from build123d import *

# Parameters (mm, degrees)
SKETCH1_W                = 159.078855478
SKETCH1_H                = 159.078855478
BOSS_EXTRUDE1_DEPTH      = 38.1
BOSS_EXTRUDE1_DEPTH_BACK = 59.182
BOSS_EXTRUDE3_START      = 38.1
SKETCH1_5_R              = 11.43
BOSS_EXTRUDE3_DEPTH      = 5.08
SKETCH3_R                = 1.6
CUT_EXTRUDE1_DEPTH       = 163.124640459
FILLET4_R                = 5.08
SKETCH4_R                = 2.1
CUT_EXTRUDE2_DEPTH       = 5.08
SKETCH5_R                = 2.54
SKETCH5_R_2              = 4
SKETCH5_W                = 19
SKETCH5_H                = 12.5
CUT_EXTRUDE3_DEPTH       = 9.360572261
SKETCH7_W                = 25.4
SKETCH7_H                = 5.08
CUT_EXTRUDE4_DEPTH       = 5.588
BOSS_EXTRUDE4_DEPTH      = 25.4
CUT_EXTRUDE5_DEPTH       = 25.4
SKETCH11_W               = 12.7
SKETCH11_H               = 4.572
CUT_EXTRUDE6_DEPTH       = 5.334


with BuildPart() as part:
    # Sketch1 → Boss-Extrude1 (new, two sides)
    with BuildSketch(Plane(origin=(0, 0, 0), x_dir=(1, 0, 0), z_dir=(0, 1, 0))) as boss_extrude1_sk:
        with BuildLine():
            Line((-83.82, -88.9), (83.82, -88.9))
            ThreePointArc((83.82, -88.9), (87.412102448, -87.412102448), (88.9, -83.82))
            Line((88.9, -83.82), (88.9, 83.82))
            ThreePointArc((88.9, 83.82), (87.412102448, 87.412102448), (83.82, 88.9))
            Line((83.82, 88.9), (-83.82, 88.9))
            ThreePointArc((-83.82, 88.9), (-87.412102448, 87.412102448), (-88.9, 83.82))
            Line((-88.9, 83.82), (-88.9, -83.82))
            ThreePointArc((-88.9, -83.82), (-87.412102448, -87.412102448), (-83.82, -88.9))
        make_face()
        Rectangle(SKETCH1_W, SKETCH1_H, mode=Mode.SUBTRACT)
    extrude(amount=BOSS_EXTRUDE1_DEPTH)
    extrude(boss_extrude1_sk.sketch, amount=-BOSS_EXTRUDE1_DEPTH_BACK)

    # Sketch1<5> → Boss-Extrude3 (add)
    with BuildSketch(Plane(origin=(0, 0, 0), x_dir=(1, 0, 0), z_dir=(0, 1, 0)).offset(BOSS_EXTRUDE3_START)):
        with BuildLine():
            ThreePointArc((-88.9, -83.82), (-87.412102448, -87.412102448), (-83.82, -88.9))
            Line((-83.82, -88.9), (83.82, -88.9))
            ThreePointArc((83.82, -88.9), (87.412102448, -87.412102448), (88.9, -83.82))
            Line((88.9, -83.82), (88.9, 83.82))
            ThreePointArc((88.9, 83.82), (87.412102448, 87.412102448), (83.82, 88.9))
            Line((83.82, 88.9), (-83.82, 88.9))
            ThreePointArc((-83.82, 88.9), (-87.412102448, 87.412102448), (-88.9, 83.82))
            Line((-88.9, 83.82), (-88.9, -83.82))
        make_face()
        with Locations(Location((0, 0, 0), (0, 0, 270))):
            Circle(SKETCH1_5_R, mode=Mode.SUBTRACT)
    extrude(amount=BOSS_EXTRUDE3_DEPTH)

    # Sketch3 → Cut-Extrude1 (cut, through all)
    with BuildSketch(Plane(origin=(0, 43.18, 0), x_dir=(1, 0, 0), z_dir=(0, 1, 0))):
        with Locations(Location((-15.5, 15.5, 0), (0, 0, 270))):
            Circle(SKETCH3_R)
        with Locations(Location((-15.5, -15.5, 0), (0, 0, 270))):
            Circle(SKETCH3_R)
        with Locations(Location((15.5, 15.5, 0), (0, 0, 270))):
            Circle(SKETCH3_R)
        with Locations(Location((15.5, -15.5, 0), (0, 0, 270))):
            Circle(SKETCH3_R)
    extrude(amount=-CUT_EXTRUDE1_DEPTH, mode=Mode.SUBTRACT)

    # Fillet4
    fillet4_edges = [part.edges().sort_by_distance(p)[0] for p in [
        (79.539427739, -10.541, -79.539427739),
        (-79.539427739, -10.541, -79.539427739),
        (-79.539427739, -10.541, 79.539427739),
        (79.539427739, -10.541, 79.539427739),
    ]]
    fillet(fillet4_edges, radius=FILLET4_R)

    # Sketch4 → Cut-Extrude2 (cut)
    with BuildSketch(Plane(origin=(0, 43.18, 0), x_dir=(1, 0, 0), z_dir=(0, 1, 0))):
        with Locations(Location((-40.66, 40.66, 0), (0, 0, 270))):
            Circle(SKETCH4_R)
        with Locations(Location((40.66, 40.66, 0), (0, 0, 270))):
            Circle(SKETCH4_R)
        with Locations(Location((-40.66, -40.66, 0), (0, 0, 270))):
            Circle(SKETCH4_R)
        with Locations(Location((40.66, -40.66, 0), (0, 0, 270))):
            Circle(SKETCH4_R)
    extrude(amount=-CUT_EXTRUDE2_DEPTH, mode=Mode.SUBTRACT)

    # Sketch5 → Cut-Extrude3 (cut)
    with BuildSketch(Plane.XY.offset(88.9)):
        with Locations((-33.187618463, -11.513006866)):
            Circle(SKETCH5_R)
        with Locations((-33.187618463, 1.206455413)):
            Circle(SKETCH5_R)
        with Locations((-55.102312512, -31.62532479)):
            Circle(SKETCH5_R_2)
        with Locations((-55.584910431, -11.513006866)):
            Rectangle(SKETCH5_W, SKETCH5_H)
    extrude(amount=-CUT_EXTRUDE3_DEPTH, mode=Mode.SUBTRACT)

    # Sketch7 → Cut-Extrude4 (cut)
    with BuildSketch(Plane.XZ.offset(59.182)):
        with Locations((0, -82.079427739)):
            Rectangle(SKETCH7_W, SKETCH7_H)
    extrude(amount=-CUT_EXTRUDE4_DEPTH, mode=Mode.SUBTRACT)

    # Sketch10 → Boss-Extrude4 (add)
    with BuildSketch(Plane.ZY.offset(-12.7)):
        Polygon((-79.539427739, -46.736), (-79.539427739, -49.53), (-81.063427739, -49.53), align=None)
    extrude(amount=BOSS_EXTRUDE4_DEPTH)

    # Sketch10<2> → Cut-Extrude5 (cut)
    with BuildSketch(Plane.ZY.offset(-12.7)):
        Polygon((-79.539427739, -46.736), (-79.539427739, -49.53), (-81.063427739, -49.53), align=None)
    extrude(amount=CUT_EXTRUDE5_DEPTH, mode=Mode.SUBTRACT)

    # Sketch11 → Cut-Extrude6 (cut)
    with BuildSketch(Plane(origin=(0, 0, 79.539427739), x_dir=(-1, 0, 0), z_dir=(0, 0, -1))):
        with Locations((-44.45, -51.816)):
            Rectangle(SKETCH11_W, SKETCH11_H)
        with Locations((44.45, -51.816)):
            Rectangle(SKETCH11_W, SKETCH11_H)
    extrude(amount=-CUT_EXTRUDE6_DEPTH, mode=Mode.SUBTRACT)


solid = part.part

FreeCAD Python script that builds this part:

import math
import FreeCAD as App
import Part
import Sketcher
Q = App.Units.Quantity


def edges_at(feature, points):
    """Names of the edges that pass closest to the given points."""
    edges = feature.Shape.Edges
    near = lambda p: min(range(len(edges)), key=lambda i: edges[i].distToShape(Part.Vertex(*p))[0])
    return sorted({f"Edge{near(p) + 1}" for p in points})


def add_polygon(sketch, points):
    """Adds a closed chain of lines whose ends are joined by coincident constraints."""
    first, n = sketch.GeometryCount, len(points)
    for a, b in zip(points, points[1:] + points[:1]):
        sketch.addGeometry(Part.LineSegment(App.Vector(*a, 0), App.Vector(*b, 0)), False)
    for i in range(n):
        sketch.addConstraint(Sketcher.Constraint("Coincident", first + i, 2, first + (i + 1) % n, 1))

doc = App.newDocument("Part")
body = doc.addObject("PartDesign::Body", "Body")

# Sketch on XZ plane
sketch1 = body.newObject("Sketcher::SketchObject", "Sketch")
sketch1.AttachmentSupport = (doc.getObject("XZ_Plane"), [""])
sketch1.MapMode = "FlatFace"
sketch1.addGeometry(Part.LineSegment(App.Vector(-84, 89, 0), App.Vector(84, 89, 0)), False)  # 0
sketch1.addGeometry(Part.ArcOfCircle(Part.Circle(App.Vector(84, 84, 0), App.Vector(0, 0, 1), 5), math.radians(0), math.radians(90)), False)  # 1
sketch1.addGeometry(Part.LineSegment(App.Vector(89, 84, 0), App.Vector(89, -84, 0)), False)  # 2
sketch1.addGeometry(Part.ArcOfCircle(Part.Circle(App.Vector(84, -84, 0), App.Vector(0, 0, 1), 5), math.radians(-90), math.radians(0)), False)  # 3
sketch1.addGeometry(Part.LineSegment(App.Vector(84, -89, 0), App.Vector(-84, -89, 0)), False)  # 4
sketch1.addGeometry(Part.ArcOfCircle(Part.Circle(App.Vector(-84, -84, 0), App.Vector(0, 0, 1), 5), math.radians(-180), math.radians(-90)), False)  # 5
sketch1.addGeometry(Part.LineSegment(App.Vector(-89, -84, 0), App.Vector(-89, 84, 0)), False)  # 6
sketch1.addGeometry(Part.ArcOfCircle(Part.Circle(App.Vector(-84, 84, 0), App.Vector(0, 0, 1), 5), math.radians(90), math.radians(180)), False)  # 7
add_polygon(sketch1, [(80, 80), (-80, 80), (-80, -80), (80, -80)])  # lines 8-11
sketch1.addConstraint([
    Sketcher.Constraint("Tangent", 0, 2, 1, 2),
    Sketcher.Constraint("Tangent", 1, 1, 2, 1),
    Sketcher.Constraint("Tangent", 2, 2, 3, 2),
    Sketcher.Constraint("Tangent", 3, 1, 4, 1),
    Sketcher.Constraint("Tangent", 4, 2, 5, 2),
    Sketcher.Constraint("Tangent", 5, 1, 6, 1),
    Sketcher.Constraint("Tangent", 6, 2, 7, 2),
    Sketcher.Constraint("Tangent", 7, 1, 0, 1),
    Sketcher.Constraint("Horizontal", 0),
    Sketcher.Constraint("Vertical", 2),
    Sketcher.Constraint("Horizontal", 4),
    Sketcher.Constraint("Vertical", 6),
    Sketcher.Constraint("Horizontal", 8),
    Sketcher.Constraint("Vertical", 9),
    Sketcher.Constraint("Horizontal", 10),
    Sketcher.Constraint("Vertical", 11),
    Sketcher.Constraint("Equal", 1, 3),
    Sketcher.Constraint("Equal", 3, 5),
    Sketcher.Constraint("Equal", 5, 7),
    Sketcher.Constraint("Symmetric", 1, 3, 5, 3, -1, 1),
    Sketcher.Constraint("Symmetric", 8, 2, 10, 2, -1, 1),
    Sketcher.Constraint("Equal", 4, 2),
    Sketcher.Constraint("Equal", 10, 9),
    Sketcher.Constraint("Radius", 1, Q("0.2 in")),
    Sketcher.Constraint("DistanceX", 0, 1, 0, 2, Q("6.6 in")),
    Sketcher.Constraint("DistanceX", 8, 2, 8, 1, 159.078855),
])
pad1 = body.newObject("PartDesign::Pad", "Pad")
pad1.Profile = sketch1
pad1.Type = "TwoLengths"
pad1.Length = Q("1.5 in")
pad1.Length2 = Q("2.33 in")
pad1.Reversed = True

# Sketch on XZ plane
sketch2 = body.newObject("Sketcher::SketchObject", "Sketch001")
sketch2.AttachmentSupport = (doc.getObject("XZ_Plane"), [""])
sketch2.MapMode = "FlatFace"
sketch2.AttachmentOffset = App.Placement(App.Vector(0, 0, -1.5 * 25.4), App.Rotation())
sketch2.addGeometry([
    Part.ArcOfCircle(Part.Circle(App.Vector(-84, 84, 0), App.Vector(0, 0, 1), 5), math.radians(90), math.radians(180)),  # 0
    Part.LineSegment(App.Vector(-84, 89, 0), App.Vector(84, 89, 0)),  # 1
    Part.ArcOfCircle(Part.Circle(App.Vector(84, 84, 0), App.Vector(0, 0, 1), 5), math.radians(0), math.radians(90)),  # 2
    Part.LineSegment(App.Vector(89, 84, 0), App.Vector(89, -84, 0)),  # 3
    Part.ArcOfCircle(Part.Circle(App.Vector(84, -84, 0), App.Vector(0, 0, 1), 5), math.radians(-90), math.radians(0)),  # 4
    Part.LineSegment(App.Vector(84, -89, 0), App.Vector(-84, -89, 0)),  # 5
    Part.ArcOfCircle(Part.Circle(App.Vector(-84, -84, 0), App.Vector(0, 0, 1), 5), math.radians(-180), math.radians(-90)),  # 6
    Part.LineSegment(App.Vector(-89, -84, 0), App.Vector(-89, 84, 0)),  # 7
    Part.Circle(App.Vector(0, 0, 0), App.Vector(0, 0, 1), 11),  # 8
], False)
sketch2.addConstraint([
    Sketcher.Constraint("Tangent", 0, 1, 1, 1),
    Sketcher.Constraint("Tangent", 1, 2, 2, 2),
    Sketcher.Constraint("Tangent", 2, 1, 3, 1),
    Sketcher.Constraint("Tangent", 3, 2, 4, 2),
    Sketcher.Constraint("Tangent", 4, 1, 5, 1),
    Sketcher.Constraint("Tangent", 5, 2, 6, 2),
    Sketcher.Constraint("Tangent", 6, 1, 7, 1),
    Sketcher.Constraint("Tangent", 7, 2, 0, 2),
    Sketcher.Constraint("Horizontal", 1),
    Sketcher.Constraint("Vertical", 3),
    Sketcher.Constraint("Horizontal", 5),
    Sketcher.Constraint("Vertical", 7),
    Sketcher.Constraint("Coincident", 8, 3, -1, 1),
    Sketcher.Constraint("Equal", 0, 2),
    Sketcher.Constraint("Equal", 2, 4),
    Sketcher.Constraint("Equal", 4, 6),
    Sketcher.Constraint("Symmetric", 0, 3, 4, 3, -1, 1),
    Sketcher.Constraint("Equal", 5, 3),
    Sketcher.Constraint("Diameter", 8, Q("0.9 in")),
    Sketcher.Constraint("Radius", 0, Q("0.2 in")),
    Sketcher.Constraint("DistanceX", 1, 1, 1, 2, Q("6.6 in")),
])
pad2 = body.newObject("PartDesign::Pad", "Pad001")
pad2.Profile = sketch2
pad2.Length = Q("0.2 in")
pad2.Reversed = True

# Sketch on XZ plane
sketch3 = body.newObject("Sketcher::SketchObject", "Sketch002")
sketch3.AttachmentSupport = (doc.getObject("XZ_Plane"), [""])
sketch3.MapMode = "FlatFace"
sketch3.AttachmentOffset = App.Placement(App.Vector(0, 0, -1.7 * 25.4), App.Rotation())
sketch3.addGeometry([
    Part.Circle(App.Vector(-15.5, -15.5, 0), App.Vector(0, 0, 1), 1.6),
    Part.Circle(App.Vector(-15.5, 15.5, 0), App.Vector(0, 0, 1), 1.6),
    Part.Circle(App.Vector(15.5, -15.5, 0), App.Vector(0, 0, 1), 1.6),
    Part.Circle(App.Vector(15.5, 15.5, 0), App.Vector(0, 0, 1), 1.6),
], False)
sketch3.addConstraint([
    Sketcher.Constraint("Equal", 0, 1),
    Sketcher.Constraint("Equal", 1, 2),
    Sketcher.Constraint("Equal", 2, 3),
    Sketcher.Constraint("Symmetric", 1, 3, 2, 3, -1, 1),
    Sketcher.Constraint("Symmetric", 0, 3, 3, 3, -1, 1),
    Sketcher.Constraint("Symmetric", 0, 3, 2, 3, -2),
    Sketcher.Constraint("Diameter", 0, 3.2),
    Sketcher.Constraint("DistanceX", 0, 3, -1, 1, 15.5),
    Sketcher.Constraint("DistanceY", 0, 3, -1, 1, 15.5),
])
pocket1 = body.newObject("PartDesign::Pocket", "Pocket")
pocket1.Profile = sketch3
pocket1.Type = "ThroughAll"
pocket1.Reversed = True
doc.recompute()

fillet = body.newObject("PartDesign::Fillet", "Fillet")
fillet.Base = (pocket1, edges_at(pocket1, [
    (79.539, -10.541, -79.539),
    (-79.539, -10.541, -79.539),
    (-79.539, -10.541, 79.539),
    (79.539, -10.541, 79.539),
]))
fillet.Radius = Q("0.2 in")

# Sketch on XZ plane
sketch4 = body.newObject("Sketcher::SketchObject", "Sketch003")
sketch4.AttachmentSupport = (doc.getObject("XZ_Plane"), [""])
sketch4.MapMode = "FlatFace"
sketch4.AttachmentOffset = App.Placement(App.Vector(0, 0, -1.7 * 25.4), App.Rotation())
sketch4.addGeometry([
    Part.Circle(App.Vector(-40.7, -40.7, 0), App.Vector(0, 0, 1), 2.1),
    Part.Circle(App.Vector(40.7, -40.7, 0), App.Vector(0, 0, 1), 2.1),
    Part.Circle(App.Vector(-40.7, 40.7, 0), App.Vector(0, 0, 1), 2.1),
    Part.Circle(App.Vector(40.7, 40.7, 0), App.Vector(0, 0, 1), 2.1),
], False)
sketch4.addConstraint([
    Sketcher.Constraint("Equal", 0, 1),
    Sketcher.Constraint("Equal", 1, 2),
    Sketcher.Constraint("Equal", 2, 3),
    Sketcher.Constraint("Symmetric", 1, 3, 2, 3, -1, 1),
    Sketcher.Constraint("Symmetric", 0, 3, 3, 3, -1, 1),
    Sketcher.Constraint("Symmetric", 0, 3, 1, 3, -2),
    Sketcher.Constraint("Diameter", 0, 4.2),
    Sketcher.Constraint("DistanceX", 0, 3, -1, 1, 40.66),
    Sketcher.Constraint("DistanceY", 0, 3, -1, 1, 40.66),
])
pocket2 = body.newObject("PartDesign::Pocket", "Pocket001")
pocket2.Profile = sketch4
pocket2.Length = Q("0.2 in")
pocket2.Reversed = True

# Sketch on XY plane
sketch5 = body.newObject("Sketcher::SketchObject", "Sketch004")
sketch5.AttachmentSupport = (doc.getObject("XY_Plane"), [""])
sketch5.MapMode = "FlatFace"
sketch5.AttachmentOffset = App.Placement(App.Vector(0, 0, 3.5 * 25.4), App.Rotation())
sketch5.addGeometry(Part.Circle(App.Vector(-33.2, -11.5, 0), App.Vector(0, 0, 1), 2.5), False)  # 0
sketch5.addGeometry(Part.Circle(App.Vector(-33.2, 1.2, 0), App.Vector(0, 0, 1), 2.5), False)  # 1
sketch5.addGeometry(Part.Circle(App.Vector(-55.1, -31.6, 0), App.Vector(0, 0, 1), 4), False)  # 2
add_polygon(sketch5, [(-65.1, -5.3), (-65.1, -17.8), (-46.1, -17.8), (-46.1, -5.3)])  # lines 3-6
sketch5.addConstraint([
    Sketcher.Constraint("Vertical", 3),
    Sketcher.Constraint("Horizontal", 4),
    Sketcher.Constraint("Vertical", 5),
    Sketcher.Constraint("Horizontal", 6),
    Sketcher.Constraint("Equal", 0, 1),
    Sketcher.Constraint("Vertical", 0, 3, 1, 3),
    Sketcher.Constraint("Diameter", 0, Q("0.2 in")),
    Sketcher.Constraint("Diameter", 2, 8.0),
    Sketcher.Constraint("DistanceX", 4, 1, 4, 2, 19.0),
    Sketcher.Constraint("DistanceY", 3, 2, 3, 1, 12.5),
    Sketcher.Constraint("DistanceY", 3, 2, 0, 3, 6.25),
    Sketcher.Constraint("DistanceX", 0, 3, -1, 1, 33.187618),
    Sketcher.Constraint("DistanceX", 3, 2, -1, 1, 65.08491),
    Sketcher.Constraint("DistanceY", 2, 3, 1, 3, 32.83178),
    Sketcher.Constraint("DistanceY", 0, 3, -1, 1, 11.513007),
    Sketcher.Constraint("DistanceY", -1, 1, 1, 3, 1.206455),
    Sketcher.Constraint("DistanceX", 2, 3, -1, 1, 55.102313),
])
pocket3 = body.newObject("PartDesign::Pocket", "Pocket002")
pocket3.Profile = sketch5
pocket3.Length = 9.360572

# Sketch on XZ plane
sketch6 = body.newObject("Sketcher::SketchObject", "Sketch005")
sketch6.AttachmentSupport = (doc.getObject("XZ_Plane"), [""])
sketch6.MapMode = "FlatFace"
sketch6.AttachmentOffset = App.Placement(App.Vector(0, 0, 2.33 * 25.4), App.Rotation())
add_polygon(sketch6, [(-13, -80), (-13, -85), (13, -85), (13, -80)])  # lines 0-3
sketch6.addConstraint([
    Sketcher.Constraint("Vertical", 0),
    Sketcher.Constraint("Horizontal", 1),
    Sketcher.Constraint("Vertical", 2),
    Sketcher.Constraint("Horizontal", 3),
    Sketcher.Constraint("DistanceX", 1, 1, 1, 2, Q("1 in")),
    Sketcher.Constraint("DistanceY", 0, 2, 0, 1, Q("0.2 in")),
    Sketcher.Constraint("DistanceX", 0, 2, -1, 1, Q("0.5 in")),
    Sketcher.Constraint("DistanceY", 0, 2, -1, 1, 84.619428),
])
pocket4 = body.newObject("PartDesign::Pocket", "Pocket003")
pocket4.Profile = sketch6
pocket4.Length = Q("0.22 in")

# Sketch on YZ plane
sketch7 = body.newObject("Sketcher::SketchObject", "Sketch006")
sketch7.AttachmentSupport = (doc.getObject("YZ_Plane"), [""])
sketch7.MapMode = "FlatFace"
sketch7.AttachmentOffset = App.Placement(App.Vector(0, 0, 0.5 * 25.4), App.Rotation())
add_polygon(sketch7, [(-49.5, -79.5), (-46.7, -79.5), (-49.5, -81.1)])  # lines 0-2
sketch7.addConstraint([
    Sketcher.Constraint("Horizontal", 0),
    Sketcher.Constraint("Vertical", 2),
    Sketcher.Constraint("DistanceX", 0, 1, 0, 2, Q("0.11 in")),
    Sketcher.Constraint("DistanceY", 2, 1, 2, 2, Q("0.06 in")),
    Sketcher.Constraint("DistanceX", 0, 2, -1, 1, Q("1.84 in")),
    Sketcher.Constraint("DistanceY", 0, 2, -1, 1, 79.539428),
])
pad3 = body.newObject("PartDesign::Pad", "Pad002")
pad3.Profile = sketch7
pad3.Length = Q("1 in")
pad3.Reversed = True

# Sketch on YZ plane
sketch8 = body.newObject("Sketcher::SketchObject", "Sketch007")
sketch8.AttachmentSupport = (doc.getObject("YZ_Plane"), [""])
sketch8.MapMode = "FlatFace"
sketch8.AttachmentOffset = App.Placement(App.Vector(0, 0, 0.5 * 25.4), App.Rotation())
add_polygon(sketch8, [(-49.5, -79.5), (-46.7, -79.5), (-49.5, -81.1)])  # lines 0-2
sketch8.addConstraint([
    Sketcher.Constraint("Horizontal", 0),
    Sketcher.Constraint("Vertical", 2),
    Sketcher.Constraint("DistanceX", 0, 1, 0, 2, Q("0.11 in")),
    Sketcher.Constraint("DistanceY", 2, 1, 2, 2, Q("0.06 in")),
    Sketcher.Constraint("DistanceX", 0, 2, -1, 1, Q("1.84 in")),
    Sketcher.Constraint("DistanceY", 0, 2, -1, 1, 79.539428),
])
pocket5 = body.newObject("PartDesign::Pocket", "Pocket004")
pocket5.Profile = sketch8
pocket5.Length = Q("1 in")

# Sketch on XY plane
sketch9 = body.newObject("Sketcher::SketchObject", "Sketch008")
sketch9.AttachmentSupport = (doc.getObject("XY_Plane"), [""])
sketch9.MapMode = "FlatFace"
sketch9.AttachmentOffset = App.Placement(App.Vector(0, 0, 79.539428), App.Rotation())
add_polygon(sketch9, [(50.8, -49.5), (50.8, -54.1), (38.1, -54.1), (38.1, -49.5)])  # lines 0-3
add_polygon(sketch9, [(-38.1, -49.5), (-38.1, -54.1), (-50.8, -54.1), (-50.8, -49.5)])  # lines 4-7
sketch9.addConstraint([
    Sketcher.Constraint("Vertical", 0),
    Sketcher.Constraint("Horizontal", 1),
    Sketcher.Constraint("Vertical", 2),
    Sketcher.Constraint("Horizontal", 3),
    Sketcher.Constraint("Vertical", 4),
    Sketcher.Constraint("Horizontal", 5),
    Sketcher.Constraint("Vertical", 6),
    Sketcher.Constraint("Horizontal", 7),
    Sketcher.Constraint("Symmetric", 1, 2, 4, 2, -2),
    Sketcher.Constraint("Symmetric", 3, 2, 6, 2, -2),
    Sketcher.Constraint("DistanceX", 1, 2, 1, 1, Q("0.5 in")),
    Sketcher.Constraint("DistanceX", -1, 1, 0, 2, Q("2 in")),
    Sketcher.Constraint("DistanceY", 0, 2, 0, 1, Q("0.18 in")),
    Sketcher.Constraint("DistanceY", 0, 2, -1, 1, Q("2.13 in")),
])
pocket6 = body.newObject("PartDesign::Pocket", "Pocket005")
pocket6.Profile = sketch9
pocket6.Length = Q("0.21 in")
pocket6.Reversed = True

doc.recompute()
